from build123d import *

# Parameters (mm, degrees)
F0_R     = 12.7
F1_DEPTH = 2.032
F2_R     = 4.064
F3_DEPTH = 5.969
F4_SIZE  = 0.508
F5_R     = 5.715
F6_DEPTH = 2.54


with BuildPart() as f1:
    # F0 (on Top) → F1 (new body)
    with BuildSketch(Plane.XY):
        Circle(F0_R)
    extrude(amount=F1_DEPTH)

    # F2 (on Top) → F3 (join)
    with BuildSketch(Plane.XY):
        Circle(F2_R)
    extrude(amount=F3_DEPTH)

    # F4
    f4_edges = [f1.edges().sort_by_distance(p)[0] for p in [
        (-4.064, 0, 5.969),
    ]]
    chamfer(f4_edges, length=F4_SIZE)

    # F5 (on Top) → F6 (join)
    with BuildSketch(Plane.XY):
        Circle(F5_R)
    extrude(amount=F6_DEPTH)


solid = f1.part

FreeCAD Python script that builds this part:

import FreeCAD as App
import Part
import Sketcher

V = App.Vector
Q = App.Units.Quantity


def edges_at(feature, points):
    """Names of the edges that pass closest to the given points."""
    edges = feature.Shape.Edges
    near = lambda p: min(range(len(edges)), key=lambda i: edges[i].distToShape(Part.Vertex(*p))[0])
    return sorted({f"Edge{near(p) + 1}" for p in points})

doc = App.newDocument("Part")
body = doc.addObject("PartDesign::Body", "Body")

# Sketch on XY plane
sketch1 = body.newObject("Sketcher::SketchObject", "Sketch")
sketch1.AttachmentSupport = (doc.getObject("XY_Plane"), [""])
sketch1.MapMode = "FlatFace"
sketch1.addGeometry(Part.Circle(V(0, 0, 0), V(0, 0, 1), 13), False)
sketch1.addConstraint(Sketcher.Constraint("Coincident", 0, 3, -1, 1))
sketch1.addConstraint(Sketcher.Constraint("Diameter", 0, Q("1 in")))
pad1 = body.newObject("PartDesign::Pad", "Pad")
pad1.Profile = sketch1
pad1.Length = Q("0.08 in")

# Sketch on XY plane
sketch2 = body.newObject("Sketcher::SketchObject", "Sketch001")
sketch2.AttachmentSupport = (doc.getObject("XY_Plane"), [""])
sketch2.MapMode = "FlatFace"
sketch2.addGeometry(Part.Circle(V(0, 0, 0), V(0, 0, 1), 4.1), False)
sketch2.addConstraint(Sketcher.Constraint("Coincident", 0, 3, -1, 1))
sketch2.addConstraint(Sketcher.Constraint("Diameter", 0, Q("0.32 in")))
pad2 = body.newObject("PartDesign::Pad", "Pad001")
pad2.Profile = sketch2
pad2.Length = Q("0.235 in")
doc.recompute()

chamfer = body.newObject("PartDesign::Chamfer", "Chamfer")
chamfer.Base = (pad2, edges_at(pad2, [(-4.064, 0, 5.969)]))
chamfer.Size = Q("0.02 in")

# Sketch on XY plane
sketch3 = body.newObject("Sketcher::SketchObject", "Sketch002")
sketch3.AttachmentSupport = (doc.getObject("XY_Plane"), [""])
sketch3.MapMode = "FlatFace"
sketch3.addGeometry(Part.Circle(V(0, 0, 0), V(0, 0, 1), 6), False)
sketch3.addConstraint(Sketcher.Constraint("Coincident", 0, 3, -1, 1))
sketch3.addConstraint(Sketcher.Constraint("Diameter", 0, Q("0.45 in")))
pad3 = body.newObject("PartDesign::Pad", "Pad002")
pad3.Profile = sketch3
pad3.Length = Q("0.1 in")

doc.recompute()
